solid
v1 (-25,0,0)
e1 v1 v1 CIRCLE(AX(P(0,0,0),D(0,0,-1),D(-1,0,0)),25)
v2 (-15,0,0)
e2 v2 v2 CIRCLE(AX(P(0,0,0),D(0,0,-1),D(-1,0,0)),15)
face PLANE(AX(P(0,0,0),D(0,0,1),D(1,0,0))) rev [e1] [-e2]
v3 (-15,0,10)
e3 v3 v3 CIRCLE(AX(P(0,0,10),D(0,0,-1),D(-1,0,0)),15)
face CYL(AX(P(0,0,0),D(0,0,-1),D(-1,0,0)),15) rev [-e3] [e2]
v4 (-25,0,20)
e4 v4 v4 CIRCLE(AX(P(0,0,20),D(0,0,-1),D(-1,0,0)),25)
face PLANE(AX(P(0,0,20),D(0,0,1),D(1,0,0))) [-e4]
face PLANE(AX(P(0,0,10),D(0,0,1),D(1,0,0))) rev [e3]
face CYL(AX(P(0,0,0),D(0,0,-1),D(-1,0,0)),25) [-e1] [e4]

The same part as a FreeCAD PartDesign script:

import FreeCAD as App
import Part
import Sketcher

V = App.Vector
Q = App.Units.Quantity

doc = App.newDocument("Part")
body = doc.addObject("PartDesign::Body", "Body")

# Sketch on XZ plane
sketch1 = doc.addObject("Sketcher::SketchObject", "Sketch")
body.addObject(sketch1)
sketch1.AttachmentSupport = (doc.XZ_Plane, [""])
sketch1.MapMode = "FlatFace"
sketch1.addGeometry([
    Part.LineSegment(V(-25, 20, 0), V(0, 20, 0)),  # 0
    Part.LineSegment(V(0, 20, 0), V(0, 10, 0)),  # 1
    Part.LineSegment(V(0, 10, 0), V(-15, 10, 0)),  # 2
    Part.LineSegment(V(-15, 10, 0), V(-15, 0, 0)),  # 3
    Part.LineSegment(V(-15, 0, 0), V(-25, 0, 0)),  # 4
    Part.LineSegment(V(-25, 0, 0), V(-25, 20, 0)),  # 5
], False)
sketch1.addConstraint([
    Sketcher.Constraint("Coincident", 0, 2, 1, 1),
    Sketcher.Constraint("Coincident", 1, 2, 2, 1),
    Sketcher.Constraint("Coincident", 2, 2, 3, 1),
    Sketcher.Constraint("Coincident", 3, 2, 4, 1),
    Sketcher.Constraint("Coincident", 4, 2, 5, 1),
    Sketcher.Constraint("Coincident", 5, 2, 0, 1),
    Sketcher.Constraint("Horizontal", 0),
    Sketcher.Constraint("Vertical", 1),
    Sketcher.Constraint("Horizontal", 2),
    Sketcher.Constraint("Vertical", 3),
    Sketcher.Constraint("Horizontal", 4),
    Sketcher.Constraint("Vertical", 5),
    Sketcher.Constraint("PointOnObject", 0, 2, -2),
    Sketcher.Constraint("PointOnObject", 3, 2, -1),
    Sketcher.Constraint("Equal", 4, 1),
    Sketcher.Constraint("Equal", 1, 3),
    Sketcher.Constraint("DistanceX", 0, 1, 0, 2, Q("25 mm")),
    Sketcher.Constraint("DistanceX", 2, 2, 2, 1, Q("15 mm")),
])
revolution = doc.addObject("PartDesign::Revolution", "Revolution")
body.addObject(revolution)
revolution.Profile = sketch1
revolution.ReferenceAxis = (sketch1, ["V_Axis"])
revolution.Angle = 360

doc.recompute()
